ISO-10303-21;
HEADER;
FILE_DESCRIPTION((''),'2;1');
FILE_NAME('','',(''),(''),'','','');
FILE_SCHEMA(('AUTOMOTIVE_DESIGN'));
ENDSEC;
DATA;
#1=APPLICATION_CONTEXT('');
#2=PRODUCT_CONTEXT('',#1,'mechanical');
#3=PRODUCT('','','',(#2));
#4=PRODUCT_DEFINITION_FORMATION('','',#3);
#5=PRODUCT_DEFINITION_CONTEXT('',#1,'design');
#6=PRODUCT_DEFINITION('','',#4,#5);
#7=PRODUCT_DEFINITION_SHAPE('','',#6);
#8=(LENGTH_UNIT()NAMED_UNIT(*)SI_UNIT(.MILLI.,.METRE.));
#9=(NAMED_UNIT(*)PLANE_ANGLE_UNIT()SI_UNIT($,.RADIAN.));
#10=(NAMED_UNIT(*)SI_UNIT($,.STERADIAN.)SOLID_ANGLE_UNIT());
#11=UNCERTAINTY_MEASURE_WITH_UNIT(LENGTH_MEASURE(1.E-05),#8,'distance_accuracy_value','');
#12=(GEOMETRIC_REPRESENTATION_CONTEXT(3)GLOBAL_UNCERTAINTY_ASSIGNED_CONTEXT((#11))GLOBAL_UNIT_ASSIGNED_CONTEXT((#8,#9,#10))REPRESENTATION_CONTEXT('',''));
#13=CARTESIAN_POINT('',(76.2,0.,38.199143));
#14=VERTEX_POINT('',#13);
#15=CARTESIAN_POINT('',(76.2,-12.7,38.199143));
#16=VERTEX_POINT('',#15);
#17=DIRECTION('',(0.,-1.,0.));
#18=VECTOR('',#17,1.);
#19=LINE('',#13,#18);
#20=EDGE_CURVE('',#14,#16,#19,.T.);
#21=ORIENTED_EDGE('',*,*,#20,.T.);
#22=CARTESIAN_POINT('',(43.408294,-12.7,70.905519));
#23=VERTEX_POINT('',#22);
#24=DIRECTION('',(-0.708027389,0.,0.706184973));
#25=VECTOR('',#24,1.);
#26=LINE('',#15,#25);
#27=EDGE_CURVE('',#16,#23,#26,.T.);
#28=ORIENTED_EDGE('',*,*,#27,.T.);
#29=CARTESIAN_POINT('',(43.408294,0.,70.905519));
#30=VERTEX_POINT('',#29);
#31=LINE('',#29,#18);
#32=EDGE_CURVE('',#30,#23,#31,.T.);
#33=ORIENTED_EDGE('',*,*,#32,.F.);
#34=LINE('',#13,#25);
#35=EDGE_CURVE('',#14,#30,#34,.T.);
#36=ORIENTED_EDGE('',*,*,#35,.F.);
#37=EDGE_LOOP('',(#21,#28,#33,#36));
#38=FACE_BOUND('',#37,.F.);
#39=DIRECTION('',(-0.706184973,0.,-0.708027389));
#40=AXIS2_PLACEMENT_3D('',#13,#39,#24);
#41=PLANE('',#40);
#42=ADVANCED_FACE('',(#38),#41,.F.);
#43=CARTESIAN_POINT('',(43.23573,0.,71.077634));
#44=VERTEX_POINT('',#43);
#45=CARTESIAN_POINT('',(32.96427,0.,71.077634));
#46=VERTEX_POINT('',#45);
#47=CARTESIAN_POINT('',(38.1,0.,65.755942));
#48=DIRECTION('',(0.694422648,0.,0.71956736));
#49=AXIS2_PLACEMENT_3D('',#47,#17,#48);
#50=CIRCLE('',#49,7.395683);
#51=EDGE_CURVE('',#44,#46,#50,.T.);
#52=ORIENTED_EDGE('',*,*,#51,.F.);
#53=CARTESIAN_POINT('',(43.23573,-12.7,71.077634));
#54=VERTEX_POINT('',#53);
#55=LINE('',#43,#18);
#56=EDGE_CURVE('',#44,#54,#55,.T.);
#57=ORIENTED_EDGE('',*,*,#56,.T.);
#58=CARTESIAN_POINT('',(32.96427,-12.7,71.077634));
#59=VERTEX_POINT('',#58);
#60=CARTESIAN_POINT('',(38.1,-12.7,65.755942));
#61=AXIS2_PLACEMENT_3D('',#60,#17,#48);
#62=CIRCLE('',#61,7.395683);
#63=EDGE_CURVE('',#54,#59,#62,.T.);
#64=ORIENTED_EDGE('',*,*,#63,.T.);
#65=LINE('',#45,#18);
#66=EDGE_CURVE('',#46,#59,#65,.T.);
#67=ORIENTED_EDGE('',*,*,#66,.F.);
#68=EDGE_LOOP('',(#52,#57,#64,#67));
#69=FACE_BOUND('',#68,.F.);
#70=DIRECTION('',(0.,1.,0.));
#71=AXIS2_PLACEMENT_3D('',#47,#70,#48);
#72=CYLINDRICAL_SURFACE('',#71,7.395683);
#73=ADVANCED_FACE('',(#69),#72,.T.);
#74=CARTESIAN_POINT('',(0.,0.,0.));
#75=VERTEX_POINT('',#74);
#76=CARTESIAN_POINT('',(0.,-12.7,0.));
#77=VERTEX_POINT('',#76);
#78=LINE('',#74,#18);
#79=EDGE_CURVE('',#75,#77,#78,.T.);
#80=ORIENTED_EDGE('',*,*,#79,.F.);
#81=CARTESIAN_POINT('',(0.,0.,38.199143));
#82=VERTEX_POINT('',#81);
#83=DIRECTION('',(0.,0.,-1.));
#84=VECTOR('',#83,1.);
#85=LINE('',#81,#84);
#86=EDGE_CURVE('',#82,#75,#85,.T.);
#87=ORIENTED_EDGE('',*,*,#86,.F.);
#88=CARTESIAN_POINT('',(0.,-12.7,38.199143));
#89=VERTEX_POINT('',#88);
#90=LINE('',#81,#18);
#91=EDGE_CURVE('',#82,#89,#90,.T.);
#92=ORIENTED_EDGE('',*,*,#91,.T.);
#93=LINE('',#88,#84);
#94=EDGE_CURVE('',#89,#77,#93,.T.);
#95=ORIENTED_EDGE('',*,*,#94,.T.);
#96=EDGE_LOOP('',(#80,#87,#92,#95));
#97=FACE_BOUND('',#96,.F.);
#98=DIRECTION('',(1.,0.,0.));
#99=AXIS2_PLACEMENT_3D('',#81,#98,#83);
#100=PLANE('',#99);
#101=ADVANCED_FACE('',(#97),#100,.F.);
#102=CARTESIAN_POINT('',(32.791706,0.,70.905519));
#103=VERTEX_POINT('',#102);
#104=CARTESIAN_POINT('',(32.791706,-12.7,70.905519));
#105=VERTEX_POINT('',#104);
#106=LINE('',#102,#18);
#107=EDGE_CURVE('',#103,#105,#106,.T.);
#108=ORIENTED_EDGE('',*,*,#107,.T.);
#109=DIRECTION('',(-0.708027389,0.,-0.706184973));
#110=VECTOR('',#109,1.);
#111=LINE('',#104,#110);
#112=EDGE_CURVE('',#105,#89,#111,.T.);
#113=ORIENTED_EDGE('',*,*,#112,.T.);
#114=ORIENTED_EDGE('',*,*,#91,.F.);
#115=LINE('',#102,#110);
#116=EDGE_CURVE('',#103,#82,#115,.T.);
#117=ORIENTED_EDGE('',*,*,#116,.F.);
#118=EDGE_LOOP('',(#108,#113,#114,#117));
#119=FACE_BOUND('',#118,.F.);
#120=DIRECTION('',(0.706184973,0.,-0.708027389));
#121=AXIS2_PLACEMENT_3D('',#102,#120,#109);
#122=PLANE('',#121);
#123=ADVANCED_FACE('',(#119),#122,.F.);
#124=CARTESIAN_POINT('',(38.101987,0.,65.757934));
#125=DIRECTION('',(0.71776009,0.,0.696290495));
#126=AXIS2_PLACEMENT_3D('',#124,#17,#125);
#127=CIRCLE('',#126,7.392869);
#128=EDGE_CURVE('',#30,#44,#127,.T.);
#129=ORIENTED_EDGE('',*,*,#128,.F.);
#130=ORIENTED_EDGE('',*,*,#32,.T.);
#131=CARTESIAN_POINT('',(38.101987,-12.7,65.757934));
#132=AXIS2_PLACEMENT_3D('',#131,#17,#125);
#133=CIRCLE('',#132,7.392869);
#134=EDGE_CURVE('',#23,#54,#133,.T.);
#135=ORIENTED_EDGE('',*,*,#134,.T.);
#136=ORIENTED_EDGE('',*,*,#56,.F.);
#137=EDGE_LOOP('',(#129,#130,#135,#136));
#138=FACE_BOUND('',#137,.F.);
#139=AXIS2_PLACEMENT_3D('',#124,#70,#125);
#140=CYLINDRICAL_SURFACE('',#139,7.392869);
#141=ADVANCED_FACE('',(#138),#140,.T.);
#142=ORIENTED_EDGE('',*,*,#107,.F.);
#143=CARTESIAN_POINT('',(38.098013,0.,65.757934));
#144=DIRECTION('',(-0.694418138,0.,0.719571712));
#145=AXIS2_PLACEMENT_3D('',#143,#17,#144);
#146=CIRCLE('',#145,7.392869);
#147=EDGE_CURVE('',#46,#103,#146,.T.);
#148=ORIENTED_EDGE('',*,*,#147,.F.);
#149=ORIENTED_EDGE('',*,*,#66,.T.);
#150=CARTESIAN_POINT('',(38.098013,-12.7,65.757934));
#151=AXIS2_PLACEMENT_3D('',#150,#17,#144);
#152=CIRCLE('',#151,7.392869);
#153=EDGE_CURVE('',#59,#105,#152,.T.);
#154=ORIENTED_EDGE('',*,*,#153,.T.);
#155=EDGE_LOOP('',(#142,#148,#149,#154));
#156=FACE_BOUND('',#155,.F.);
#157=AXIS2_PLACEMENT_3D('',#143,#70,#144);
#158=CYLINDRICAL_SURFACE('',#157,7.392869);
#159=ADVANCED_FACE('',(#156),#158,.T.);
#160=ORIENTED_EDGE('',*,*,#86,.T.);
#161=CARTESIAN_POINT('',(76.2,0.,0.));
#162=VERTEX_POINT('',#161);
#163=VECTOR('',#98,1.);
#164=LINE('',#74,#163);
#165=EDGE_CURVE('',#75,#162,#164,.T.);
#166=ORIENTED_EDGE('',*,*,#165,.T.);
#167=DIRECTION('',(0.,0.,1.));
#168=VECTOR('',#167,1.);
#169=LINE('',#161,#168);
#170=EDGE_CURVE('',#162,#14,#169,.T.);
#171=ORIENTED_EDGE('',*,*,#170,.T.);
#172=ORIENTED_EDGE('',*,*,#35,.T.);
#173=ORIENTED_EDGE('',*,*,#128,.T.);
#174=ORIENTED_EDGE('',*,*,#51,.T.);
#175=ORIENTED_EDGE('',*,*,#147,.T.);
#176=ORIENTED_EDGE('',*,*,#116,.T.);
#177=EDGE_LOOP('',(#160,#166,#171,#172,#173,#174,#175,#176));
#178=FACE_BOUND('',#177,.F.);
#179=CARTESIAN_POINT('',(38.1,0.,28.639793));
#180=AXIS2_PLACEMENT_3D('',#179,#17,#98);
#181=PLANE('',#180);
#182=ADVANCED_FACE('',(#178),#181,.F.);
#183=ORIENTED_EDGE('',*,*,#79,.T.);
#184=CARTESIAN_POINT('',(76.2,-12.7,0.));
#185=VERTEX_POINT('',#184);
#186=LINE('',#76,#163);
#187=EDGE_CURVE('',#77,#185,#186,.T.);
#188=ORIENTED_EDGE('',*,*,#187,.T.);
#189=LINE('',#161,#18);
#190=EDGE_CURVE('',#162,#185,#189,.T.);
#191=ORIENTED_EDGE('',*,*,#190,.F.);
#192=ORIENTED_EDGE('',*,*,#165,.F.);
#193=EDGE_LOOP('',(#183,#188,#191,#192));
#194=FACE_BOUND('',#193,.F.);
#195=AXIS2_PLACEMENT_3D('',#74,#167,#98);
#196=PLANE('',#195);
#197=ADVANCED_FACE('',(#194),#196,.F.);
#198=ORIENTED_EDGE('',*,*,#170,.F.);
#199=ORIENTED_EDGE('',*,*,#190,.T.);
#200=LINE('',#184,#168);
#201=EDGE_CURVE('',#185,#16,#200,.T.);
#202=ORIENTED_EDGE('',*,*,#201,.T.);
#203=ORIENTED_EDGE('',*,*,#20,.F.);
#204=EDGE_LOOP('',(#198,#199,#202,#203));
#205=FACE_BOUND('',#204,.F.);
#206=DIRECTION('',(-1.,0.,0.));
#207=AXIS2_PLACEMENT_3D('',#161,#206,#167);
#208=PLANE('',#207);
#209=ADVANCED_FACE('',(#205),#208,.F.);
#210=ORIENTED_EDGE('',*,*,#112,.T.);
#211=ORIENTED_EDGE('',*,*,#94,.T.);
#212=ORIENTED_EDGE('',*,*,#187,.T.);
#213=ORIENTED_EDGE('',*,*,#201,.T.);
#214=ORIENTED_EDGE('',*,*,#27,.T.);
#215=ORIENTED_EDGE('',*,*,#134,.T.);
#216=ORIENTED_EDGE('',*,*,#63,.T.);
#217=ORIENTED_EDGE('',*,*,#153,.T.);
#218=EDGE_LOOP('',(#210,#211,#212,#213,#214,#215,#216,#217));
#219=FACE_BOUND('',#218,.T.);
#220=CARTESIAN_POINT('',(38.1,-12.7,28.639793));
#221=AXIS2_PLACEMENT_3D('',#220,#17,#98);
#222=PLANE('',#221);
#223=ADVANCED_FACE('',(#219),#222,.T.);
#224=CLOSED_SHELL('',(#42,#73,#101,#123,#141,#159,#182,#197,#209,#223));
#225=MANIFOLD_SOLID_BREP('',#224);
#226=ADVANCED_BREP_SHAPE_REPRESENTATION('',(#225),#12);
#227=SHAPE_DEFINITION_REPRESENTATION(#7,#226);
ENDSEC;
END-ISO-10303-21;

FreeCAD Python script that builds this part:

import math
import FreeCAD as App
import Part
import Sketcher

V = App.Vector
Q = App.Units.Quantity

doc = App.newDocument("Part")
body = doc.addObject("PartDesign::Body", "Body")

# Sketch on XZ plane
sketch1 = body.newObject("Sketcher::SketchObject", "Sketch")
sketch1.AttachmentSupport = (doc.getObject("XZ_Plane"), [""])
sketch1.MapMode = "FlatFace"
sketch1.addGeometry([
    Part.LineSegment(V(0, 38.2, 0), V(0, 0, 0)),  # 0
    Part.LineSegment(V(0, 0, 0), V(76.2, 0, 0)),  # 1
    Part.LineSegment(V(76.2, 0, 0), V(76.2, 38.2, 0)),  # 2
    Part.LineSegment(V(76.2, 38.2, 0), V(43.41, 70.91, 0)),  # 3
    Part.ArcOfCircle(Part.Circle(V(38.1, 65.76, 0), V(0, 0, 1), 7.39), math.radians(44.13), math.radians(46.02)),  # 4
    Part.ArcOfCircle(Part.Circle(V(38.1, 65.76, 0), V(0, 0, 1), 7.4), math.radians(46), math.radians(134)),  # 5
    Part.ArcOfCircle(Part.Circle(V(38.1, 65.76, 0), V(0, 0, 1), 7.39), math.radians(133.98), math.radians(135.87)),  # 6
    Part.LineSegment(V(32.79, 70.91, 0), V(0, 38.2, 0)),  # 7
], False)
sketch1.addConstraint([
    Sketcher.Constraint("Coincident", 0, 2, 1, 1),
    Sketcher.Constraint("Coincident", 1, 2, 2, 1),
    Sketcher.Constraint("Coincident", 2, 2, 3, 1),
    Sketcher.Constraint("Coincident", 3, 2, 4, 1),
    Sketcher.Constraint("Coincident", 4, 2, 5, 1),
    Sketcher.Constraint("Coincident", 5, 2, 6, 1),
    Sketcher.Constraint("Coincident", 6, 2, 7, 1),
    Sketcher.Constraint("Coincident", 7, 2, 0, 1),
    Sketcher.Constraint("Vertical", 0),
    Sketcher.Constraint("Horizontal", 1),
    Sketcher.Constraint("Vertical", 2),
    Sketcher.Constraint("Coincident", 0, 2, -1, 1),
    Sketcher.Constraint("Equal", 4, 6),
    Sketcher.Constraint("Horizontal", 4, 3, 6, 3),
    Sketcher.Constraint("Horizontal", 4, 2, 5, 2),
    Sketcher.Constraint("Horizontal", 3, 2, 6, 2),
    Sketcher.Constraint("Horizontal", 2, 2, 7, 2),
    Sketcher.Constraint("Equal", 3, 7),
    Sketcher.Constraint("DistanceX", 1, 1, 1, 2, Q("3 in")),
    Sketcher.Constraint("Radius", 4, 7.392869),
    Sketcher.Constraint("Radius", 5, 7.395683),
    Sketcher.Constraint("DistanceY", 2, 2, 5, 3, 27.556799),
    Sketcher.Constraint("DistanceY", 4, 3, 4, 2, 5.3197),
    Sketcher.Constraint("DistanceY", 0, 2, 0, 1, 38.199143),
    Sketcher.Constraint("DistanceY", -1, 1, 3, 2, 70.905519),
    Sketcher.Constraint("DistanceX", -1, 1, 4, 2, 43.23573),
])
pad1 = body.newObject("PartDesign::Pad", "Pad")
pad1.Profile = sketch1
pad1.Length = Q("0.5 in")

doc.recompute()
